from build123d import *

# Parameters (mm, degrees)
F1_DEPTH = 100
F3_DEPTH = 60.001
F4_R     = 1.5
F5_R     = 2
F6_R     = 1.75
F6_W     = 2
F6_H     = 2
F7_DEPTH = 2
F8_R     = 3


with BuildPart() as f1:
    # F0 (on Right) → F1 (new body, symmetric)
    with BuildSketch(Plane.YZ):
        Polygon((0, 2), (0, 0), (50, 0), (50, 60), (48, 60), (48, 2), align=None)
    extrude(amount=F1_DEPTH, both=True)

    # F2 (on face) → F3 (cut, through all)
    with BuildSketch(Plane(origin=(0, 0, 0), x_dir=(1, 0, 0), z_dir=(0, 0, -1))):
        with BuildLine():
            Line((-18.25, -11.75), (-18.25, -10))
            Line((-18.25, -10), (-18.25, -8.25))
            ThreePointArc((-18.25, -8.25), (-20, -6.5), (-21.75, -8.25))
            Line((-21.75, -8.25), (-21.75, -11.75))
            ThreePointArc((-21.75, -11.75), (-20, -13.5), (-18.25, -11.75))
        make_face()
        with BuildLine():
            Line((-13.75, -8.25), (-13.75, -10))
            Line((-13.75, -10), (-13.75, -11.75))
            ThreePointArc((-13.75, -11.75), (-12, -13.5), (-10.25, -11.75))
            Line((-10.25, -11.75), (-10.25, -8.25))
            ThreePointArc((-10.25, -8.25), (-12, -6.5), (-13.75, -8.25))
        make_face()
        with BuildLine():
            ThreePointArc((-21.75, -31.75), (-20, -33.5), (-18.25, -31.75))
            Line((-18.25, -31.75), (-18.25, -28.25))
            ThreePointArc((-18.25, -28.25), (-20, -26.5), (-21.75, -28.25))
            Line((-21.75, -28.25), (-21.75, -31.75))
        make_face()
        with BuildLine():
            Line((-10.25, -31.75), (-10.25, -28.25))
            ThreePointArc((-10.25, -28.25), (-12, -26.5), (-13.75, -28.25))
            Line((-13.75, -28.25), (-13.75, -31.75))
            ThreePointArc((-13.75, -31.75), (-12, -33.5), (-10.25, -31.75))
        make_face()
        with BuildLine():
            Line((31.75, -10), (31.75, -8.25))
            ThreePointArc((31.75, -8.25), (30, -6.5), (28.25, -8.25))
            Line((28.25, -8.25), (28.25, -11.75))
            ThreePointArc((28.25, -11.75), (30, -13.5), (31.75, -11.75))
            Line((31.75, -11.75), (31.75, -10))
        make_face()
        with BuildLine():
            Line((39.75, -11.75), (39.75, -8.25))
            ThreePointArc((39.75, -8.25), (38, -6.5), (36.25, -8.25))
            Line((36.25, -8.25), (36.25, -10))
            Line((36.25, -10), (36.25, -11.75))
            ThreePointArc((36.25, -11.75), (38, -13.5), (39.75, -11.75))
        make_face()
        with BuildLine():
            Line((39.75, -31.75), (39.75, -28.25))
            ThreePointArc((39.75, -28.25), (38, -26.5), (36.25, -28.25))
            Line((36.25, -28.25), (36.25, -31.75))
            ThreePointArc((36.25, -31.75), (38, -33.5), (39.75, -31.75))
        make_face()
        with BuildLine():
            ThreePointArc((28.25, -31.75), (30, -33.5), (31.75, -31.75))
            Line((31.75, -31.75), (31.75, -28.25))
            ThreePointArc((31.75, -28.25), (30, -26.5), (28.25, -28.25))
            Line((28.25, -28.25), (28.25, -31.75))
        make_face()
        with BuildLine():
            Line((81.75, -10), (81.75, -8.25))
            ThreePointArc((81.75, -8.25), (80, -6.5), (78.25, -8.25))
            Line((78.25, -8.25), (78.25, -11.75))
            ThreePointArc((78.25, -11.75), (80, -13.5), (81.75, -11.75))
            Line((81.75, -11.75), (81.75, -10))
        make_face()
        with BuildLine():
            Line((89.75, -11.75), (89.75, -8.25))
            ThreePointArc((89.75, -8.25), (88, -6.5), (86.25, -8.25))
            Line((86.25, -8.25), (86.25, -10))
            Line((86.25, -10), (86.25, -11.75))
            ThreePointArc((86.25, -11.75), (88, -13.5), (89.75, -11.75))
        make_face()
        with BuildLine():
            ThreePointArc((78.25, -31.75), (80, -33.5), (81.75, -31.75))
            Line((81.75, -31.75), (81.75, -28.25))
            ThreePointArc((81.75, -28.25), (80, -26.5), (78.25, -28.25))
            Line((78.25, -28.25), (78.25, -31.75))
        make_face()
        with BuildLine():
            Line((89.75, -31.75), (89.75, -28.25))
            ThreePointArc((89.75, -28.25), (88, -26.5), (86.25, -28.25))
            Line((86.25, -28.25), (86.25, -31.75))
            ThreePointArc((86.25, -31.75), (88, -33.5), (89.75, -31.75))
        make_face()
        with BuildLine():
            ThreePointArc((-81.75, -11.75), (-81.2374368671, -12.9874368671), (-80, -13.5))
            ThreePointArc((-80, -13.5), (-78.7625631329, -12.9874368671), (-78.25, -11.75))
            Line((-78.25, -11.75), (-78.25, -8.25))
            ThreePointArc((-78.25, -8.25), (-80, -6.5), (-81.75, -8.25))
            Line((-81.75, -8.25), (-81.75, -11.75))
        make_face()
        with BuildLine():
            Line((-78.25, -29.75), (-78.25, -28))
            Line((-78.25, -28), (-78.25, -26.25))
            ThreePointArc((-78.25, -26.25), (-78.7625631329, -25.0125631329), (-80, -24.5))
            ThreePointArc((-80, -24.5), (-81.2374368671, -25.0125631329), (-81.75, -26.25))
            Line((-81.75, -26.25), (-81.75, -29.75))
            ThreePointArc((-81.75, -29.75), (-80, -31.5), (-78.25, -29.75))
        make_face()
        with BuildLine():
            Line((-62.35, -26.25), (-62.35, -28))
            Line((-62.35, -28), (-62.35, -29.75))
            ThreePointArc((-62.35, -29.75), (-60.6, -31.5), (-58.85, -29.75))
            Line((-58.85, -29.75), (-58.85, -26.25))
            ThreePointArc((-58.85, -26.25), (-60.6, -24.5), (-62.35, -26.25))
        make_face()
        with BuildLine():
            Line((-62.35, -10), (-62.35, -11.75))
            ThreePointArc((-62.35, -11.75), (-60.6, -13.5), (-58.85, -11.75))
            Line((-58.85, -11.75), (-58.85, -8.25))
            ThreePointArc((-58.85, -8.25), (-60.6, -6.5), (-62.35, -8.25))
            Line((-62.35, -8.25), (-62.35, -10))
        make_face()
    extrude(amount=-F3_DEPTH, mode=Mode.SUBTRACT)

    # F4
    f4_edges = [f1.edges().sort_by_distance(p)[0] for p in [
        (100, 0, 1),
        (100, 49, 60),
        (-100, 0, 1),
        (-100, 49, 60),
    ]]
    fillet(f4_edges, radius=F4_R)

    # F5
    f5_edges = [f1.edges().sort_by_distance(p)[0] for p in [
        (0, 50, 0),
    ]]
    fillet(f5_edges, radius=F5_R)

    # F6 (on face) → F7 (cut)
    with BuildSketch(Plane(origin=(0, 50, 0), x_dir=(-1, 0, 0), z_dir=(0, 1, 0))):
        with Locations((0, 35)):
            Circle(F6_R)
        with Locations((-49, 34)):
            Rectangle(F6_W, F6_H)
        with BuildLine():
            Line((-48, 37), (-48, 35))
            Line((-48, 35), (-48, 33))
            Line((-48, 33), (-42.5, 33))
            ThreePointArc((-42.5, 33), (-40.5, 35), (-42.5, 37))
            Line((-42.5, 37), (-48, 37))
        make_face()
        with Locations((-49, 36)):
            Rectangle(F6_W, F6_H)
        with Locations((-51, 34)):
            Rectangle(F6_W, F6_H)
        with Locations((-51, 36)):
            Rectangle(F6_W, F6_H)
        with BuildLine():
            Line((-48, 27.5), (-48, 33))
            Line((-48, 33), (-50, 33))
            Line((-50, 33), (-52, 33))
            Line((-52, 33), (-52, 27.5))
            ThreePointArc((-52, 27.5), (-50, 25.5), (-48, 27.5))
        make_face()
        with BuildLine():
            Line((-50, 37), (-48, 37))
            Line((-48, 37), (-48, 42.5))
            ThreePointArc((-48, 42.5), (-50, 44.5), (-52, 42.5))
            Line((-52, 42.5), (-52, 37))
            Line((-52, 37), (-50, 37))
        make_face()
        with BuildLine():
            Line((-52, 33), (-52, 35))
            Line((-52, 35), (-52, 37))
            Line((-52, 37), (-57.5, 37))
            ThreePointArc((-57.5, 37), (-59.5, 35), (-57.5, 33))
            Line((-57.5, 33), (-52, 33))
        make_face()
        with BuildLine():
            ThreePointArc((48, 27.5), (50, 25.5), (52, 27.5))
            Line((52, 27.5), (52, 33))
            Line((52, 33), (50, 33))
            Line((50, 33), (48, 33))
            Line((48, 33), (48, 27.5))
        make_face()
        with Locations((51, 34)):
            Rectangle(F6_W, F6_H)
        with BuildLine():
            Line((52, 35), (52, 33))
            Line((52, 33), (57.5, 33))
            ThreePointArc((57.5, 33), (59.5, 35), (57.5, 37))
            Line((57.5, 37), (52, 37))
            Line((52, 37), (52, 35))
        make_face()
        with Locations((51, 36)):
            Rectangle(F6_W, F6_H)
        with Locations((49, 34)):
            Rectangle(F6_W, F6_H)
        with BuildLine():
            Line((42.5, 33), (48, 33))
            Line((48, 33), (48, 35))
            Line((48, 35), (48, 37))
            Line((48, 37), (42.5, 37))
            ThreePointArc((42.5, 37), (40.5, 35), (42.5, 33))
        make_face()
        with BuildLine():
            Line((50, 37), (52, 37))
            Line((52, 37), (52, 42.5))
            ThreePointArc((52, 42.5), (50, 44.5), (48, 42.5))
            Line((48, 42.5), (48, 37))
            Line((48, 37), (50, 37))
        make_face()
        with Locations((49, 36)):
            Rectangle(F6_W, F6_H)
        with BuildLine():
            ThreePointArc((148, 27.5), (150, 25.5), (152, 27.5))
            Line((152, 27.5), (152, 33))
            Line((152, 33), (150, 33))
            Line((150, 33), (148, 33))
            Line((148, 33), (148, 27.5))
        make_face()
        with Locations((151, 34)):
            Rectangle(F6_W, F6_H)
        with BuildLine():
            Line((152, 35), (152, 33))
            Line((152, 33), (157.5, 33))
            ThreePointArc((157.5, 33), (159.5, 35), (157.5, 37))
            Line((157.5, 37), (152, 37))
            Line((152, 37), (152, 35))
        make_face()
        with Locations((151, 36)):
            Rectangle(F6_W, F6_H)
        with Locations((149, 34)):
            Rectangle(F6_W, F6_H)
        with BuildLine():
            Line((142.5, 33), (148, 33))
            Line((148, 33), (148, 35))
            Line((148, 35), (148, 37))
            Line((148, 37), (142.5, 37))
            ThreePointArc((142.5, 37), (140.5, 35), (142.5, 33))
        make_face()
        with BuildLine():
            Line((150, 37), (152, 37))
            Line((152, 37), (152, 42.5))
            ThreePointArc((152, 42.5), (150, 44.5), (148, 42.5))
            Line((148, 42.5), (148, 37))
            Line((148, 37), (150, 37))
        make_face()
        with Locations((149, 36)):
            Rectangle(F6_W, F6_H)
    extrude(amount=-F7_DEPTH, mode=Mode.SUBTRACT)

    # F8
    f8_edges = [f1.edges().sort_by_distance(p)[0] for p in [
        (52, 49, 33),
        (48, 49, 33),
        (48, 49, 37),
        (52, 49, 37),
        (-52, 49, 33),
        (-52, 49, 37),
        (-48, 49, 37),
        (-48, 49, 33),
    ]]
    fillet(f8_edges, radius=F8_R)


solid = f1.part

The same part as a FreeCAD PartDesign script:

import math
import FreeCAD as App
import Part
import Sketcher


def edges_at(feature, points):
    """Names of the edges that pass closest to the given points."""
    edges = feature.Shape.Edges
    near = lambda p: min(range(len(edges)), key=lambda i: edges[i].distToShape(Part.Vertex(*p))[0])
    return sorted({f"Edge{near(p) + 1}" for p in points})

doc = App.newDocument("Part")
body = doc.addObject("PartDesign::Body", "Body")

sketch1 = body.newObject("Sketcher::SketchObject", "Sketch")
sketch1.AttachmentSupport = (doc.getObject("YZ_Plane"), [""])
sketch1.MapMode = "FlatFace"
sketch1.addGeometry([
    Part.LineSegment(App.Vector(0, 2, 0), App.Vector(0, 0, 0)),
    Part.LineSegment(App.Vector(0, 0, 0), App.Vector(50, 0, 0)),
    Part.LineSegment(App.Vector(50, 0, 0), App.Vector(50, 60, 0)),
    Part.LineSegment(App.Vector(50, 60, 0), App.Vector(48, 60, 0)),
    Part.LineSegment(App.Vector(48, 60, 0), App.Vector(48, 2, 0)),
    Part.LineSegment(App.Vector(48, 2, 0), App.Vector(0, 2, 0)),
], False)
sketch1.addConstraint([
    Sketcher.Constraint("Coincident", 0, 2, 1, 1),
    Sketcher.Constraint("Coincident", 1, 2, 2, 1),
    Sketcher.Constraint("Coincident", 2, 2, 3, 1),
    Sketcher.Constraint("Coincident", 3, 2, 4, 1),
    Sketcher.Constraint("Coincident", 4, 2, 5, 1),
    Sketcher.Constraint("Coincident", 5, 2, 0, 1),
    Sketcher.Constraint("Vertical", 0),
    Sketcher.Constraint("Horizontal", 1),
    Sketcher.Constraint("Vertical", 2),
    Sketcher.Constraint("Horizontal", 3),
    Sketcher.Constraint("Vertical", 4),
    Sketcher.Constraint("Horizontal", 5),
    Sketcher.Constraint("Coincident", 0, 2, -1, 1),
    Sketcher.Constraint("Equal", 3, 0),
    Sketcher.Constraint("DistanceX", 1, 1, 1, 2, 50.0),
    Sketcher.Constraint("DistanceX", 3, 2, 3, 1, 2.0),
    Sketcher.Constraint("DistanceY", 2, 1, 2, 2, 60.0),
])
pad1 = body.newObject("PartDesign::Pad", "Pad")
pad1.Profile = sketch1
pad1.Length = 200
pad1.Midplane = True

sketch2 = body.newObject("Sketcher::SketchObject", "Sketch001")
sketch2.AttachmentSupport = (doc.getObject("XY_Plane"), [""])
sketch2.MapMode = "FlatFace"
sketch2.addGeometry([
    Part.LineSegment(App.Vector(-18.25, 11.75, 0), App.Vector(-18.25, 8.25, 0)),
    Part.ArcOfCircle(Part.Circle(App.Vector(-20, 8.25, 0), App.Vector(0, 0, 1), 1.75), math.radians(180), math.radians(360)),
    Part.LineSegment(App.Vector(-21.75, 8.25, 0), App.Vector(-21.75, 11.75, 0)),
    Part.ArcOfCircle(Part.Circle(App.Vector(-20, 11.75, 0), App.Vector(0, 0, 1), 1.75), math.radians(0), math.radians(180)),
    Part.LineSegment(App.Vector(-13.75, 8.25, 0), App.Vector(-13.75, 11.75, 0)),
    Part.ArcOfCircle(Part.Circle(App.Vector(-12, 11.75, 0), App.Vector(0, 0, 1), 1.75), math.radians(0), math.radians(180)),
    Part.LineSegment(App.Vector(-10.25, 11.75, 0), App.Vector(-10.25, 8.25, 0)),
    Part.ArcOfCircle(Part.Circle(App.Vector(-12, 8.25, 0), App.Vector(0, 0, 1), 1.75), math.radians(180), math.radians(360)),
    Part.ArcOfCircle(Part.Circle(App.Vector(-20, 31.75, 0), App.Vector(0, 0, 1), 1.75), math.radians(0), math.radians(180)),
    Part.LineSegment(App.Vector(-18.25, 31.75, 0), App.Vector(-18.25, 28.25, 0)),
    Part.ArcOfCircle(Part.Circle(App.Vector(-20, 28.25, 0), App.Vector(0, 0, 1), 1.75), math.radians(180), math.radians(360)),
    Part.LineSegment(App.Vector(-21.75, 28.25, 0), App.Vector(-21.75, 31.75, 0)),
    Part.LineSegment(App.Vector(-10.25, 31.75, 0), App.Vector(-10.25, 28.25, 0)),
    Part.ArcOfCircle(Part.Circle(App.Vector(-12, 28.25, 0), App.Vector(0, 0, 1), 1.75), math.radians(180), math.radians(360)),
    Part.LineSegment(App.Vector(-13.75, 28.25, 0), App.Vector(-13.75, 31.75, 0)),
    Part.ArcOfCircle(Part.Circle(App.Vector(-12, 31.75, 0), App.Vector(0, 0, 1), 1.75), math.radians(0), math.radians(180)),
    Part.ArcOfCircle(Part.Circle(App.Vector(30, 8.25, 0), App.Vector(0, 0, 1), 1.75), math.radians(180), math.radians(360)),
    Part.LineSegment(App.Vector(28.25, 8.25, 0), App.Vector(28.25, 11.75, 0)),
    Part.ArcOfCircle(Part.Circle(App.Vector(30, 11.75, 0), App.Vector(0, 0, 1), 1.75), math.radians(0), math.radians(180)),
    Part.LineSegment(App.Vector(31.75, 11.75, 0), App.Vector(31.75, 8.25, 0)),
    Part.LineSegment(App.Vector(39.75, 11.75, 0), App.Vector(39.75, 8.25, 0)),
    Part.ArcOfCircle(Part.Circle(App.Vector(38, 8.25, 0), App.Vector(0, 0, 1), 1.75), math.radians(180), math.radians(360)),
    Part.LineSegment(App.Vector(36.25, 8.25, 0), App.Vector(36.25, 11.75, 0)),
    Part.ArcOfCircle(Part.Circle(App.Vector(38, 11.75, 0), App.Vector(0, 0, 1), 1.75), math.radians(0), math.radians(180)),
    Part.LineSegment(App.Vector(39.75, 31.75, 0), App.Vector(39.75, 28.25, 0)),
    Part.ArcOfCircle(Part.Circle(App.Vector(38, 28.25, 0), App.Vector(0, 0, 1), 1.75), math.radians(180), math.radians(360)),
    Part.LineSegment(App.Vector(36.25, 28.25, 0), App.Vector(36.25, 31.75, 0)),
    Part.ArcOfCircle(Part.Circle(App.Vector(38, 31.75, 0), App.Vector(0, 0, 1), 1.75), math.radians(0), math.radians(180)),
    Part.ArcOfCircle(Part.Circle(App.Vector(30, 31.75, 0), App.Vector(0, 0, 1), 1.75), math.radians(0), math.radians(180)),
    Part.LineSegment(App.Vector(31.75, 31.75, 0), App.Vector(31.75, 28.25, 0)),
    Part.ArcOfCircle(Part.Circle(App.Vector(30, 28.25, 0), App.Vector(0, 0, 1), 1.75), math.radians(180), math.radians(360)),
    Part.LineSegment(App.Vector(28.25, 28.25, 0), App.Vector(28.25, 31.75, 0)),
    Part.ArcOfCircle(Part.Circle(App.Vector(80, 8.25, 0), App.Vector(0, 0, 1), 1.75), math.radians(180), math.radians(360)),
    Part.LineSegment(App.Vector(78.25, 8.25, 0), App.Vector(78.25, 11.75, 0)),
    Part.ArcOfCircle(Part.Circle(App.Vector(80, 11.75, 0), App.Vector(0, 0, 1), 1.75), math.radians(0), math.radians(180)),
    Part.LineSegment(App.Vector(81.75, 11.75, 0), App.Vector(81.75, 8.25, 0)),
    Part.LineSegment(App.Vector(89.75, 11.75, 0), App.Vector(89.75, 8.25, 0)),
    Part.ArcOfCircle(Part.Circle(App.Vector(88, 8.25, 0), App.Vector(0, 0, 1), 1.75), math.radians(180), math.radians(360)),
    Part.LineSegment(App.Vector(86.25, 8.25, 0), App.Vector(86.25, 11.75, 0)),
    Part.ArcOfCircle(Part.Circle(App.Vector(88, 11.75, 0), App.Vector(0, 0, 1), 1.75), math.radians(0), math.radians(180)),
    Part.ArcOfCircle(Part.Circle(App.Vector(80, 31.75, 0), App.Vector(0, 0, 1), 1.75), math.radians(0), math.radians(180)),
    Part.LineSegment(App.Vector(81.75, 31.75, 0), App.Vector(81.75, 28.25, 0)),
    Part.ArcOfCircle(Part.Circle(App.Vector(80, 28.25, 0), App.Vector(0, 0, 1), 1.75), math.radians(180), math.radians(360)),
    Part.LineSegment(App.Vector(78.25, 28.25, 0), App.Vector(78.25, 31.75, 0)),
    Part.LineSegment(App.Vector(89.75, 31.75, 0), App.Vector(89.75, 28.25, 0)),
    Part.ArcOfCircle(Part.Circle(App.Vector(88, 28.25, 0), App.Vector(0, 0, 1), 1.75), math.radians(180), math.radians(360)),
    Part.LineSegment(App.Vector(86.25, 28.25, 0), App.Vector(86.25, 31.75, 0)),
    Part.ArcOfCircle(Part.Circle(App.Vector(88, 31.75, 0), App.Vector(0, 0, 1), 1.75), math.radians(0), math.radians(180)),
    Part.ArcOfCircle(Part.Circle(App.Vector(-80, 11.75, 0), App.Vector(0, 0, 1), 1.75), math.radians(90), math.radians(180)),
    Part.ArcOfCircle(Part.Circle(App.Vector(-80, 11.75, 0), App.Vector(0, 0, 1), 1.75), math.radians(0), math.radians(90)),
    Part.LineSegment(App.Vector(-78.25, 11.75, 0), App.Vector(-78.25, 8.25, 0)),
    Part.ArcOfCircle(Part.Circle(App.Vector(-80, 8.25, 0), App.Vector(0, 0, 1), 1.75), math.radians(180), math.radians(360)),
    Part.LineSegment(App.Vector(-81.75, 8.25, 0), App.Vector(-81.75, 11.75, 0)),
    Part.LineSegment(App.Vector(-78.25, 29.75, 0), App.Vector(-78.25, 26.25, 0)),
    Part.ArcOfCircle(Part.Circle(App.Vector(-80, 26.25, 0), App.Vector(0, 0, 1), 1.75), math.radians(-90), math.radians(0)),
    Part.ArcOfCircle(Part.Circle(App.Vector(-80, 26.25, 0), App.Vector(0, 0, 1), 1.75), math.radians(180), math.radians(270)),
    Part.LineSegment(App.Vector(-81.75, 26.25, 0), App.Vector(-81.75, 29.75, 0)),
    Part.ArcOfCircle(Part.Circle(App.Vector(-80, 29.75, 0), App.Vector(0, 0, 1), 1.75), math.radians(0), math.radians(180)),
    Part.LineSegment(App.Vector(-62.35, 26.25, 0), App.Vector(-62.35, 29.75, 0)),
    Part.ArcOfCircle(Part.Circle(App.Vector(-60.6, 29.75, 0), App.Vector(0, 0, 1), 1.75), math.radians(0), math.radians(180)),
    Part.LineSegment(App.Vector(-58.85, 29.75, 0), App.Vector(-58.85, 26.25, 0)),
    Part.ArcOfCircle(Part.Circle(App.Vector(-60.6, 26.25, 0), App.Vector(0, 0, 1), 1.75), math.radians(180), math.radians(360)),
    Part.ArcOfCircle(Part.Circle(App.Vector(-60.6, 11.75, 0), App.Vector(0, 0, 1), 1.75), math.radians(0), math.radians(180)),
    Part.LineSegment(App.Vector(-58.85, 11.75, 0), App.Vector(-58.85, 8.25, 0)),
    Part.ArcOfCircle(Part.Circle(App.Vector(-60.6, 8.25, 0), App.Vector(0, 0, 1), 1.75), math.radians(180), math.radians(360)),
    Part.LineSegment(App.Vector(-62.35, 8.25, 0), App.Vector(-62.35, 11.75, 0)),
], False)
sketch2.addConstraint([
    Sketcher.Constraint("Tangent", 0, 2, 1, 2),
    Sketcher.Constraint("Tangent", 1, 1, 2, 1),
    Sketcher.Constraint("Tangent", 2, 2, 3, 2),
    Sketcher.Constraint("Tangent", 3, 1, 0, 1),
    Sketcher.Constraint("Tangent", 4, 2, 5, 2),
    Sketcher.Constraint("Tangent", 5, 1, 6, 1),
    Sketcher.Constraint("Tangent", 6, 2, 7, 2),
    Sketcher.Constraint("Tangent", 7, 1, 4, 1),
    Sketcher.Constraint("Tangent", 8, 1, 9, 1),
    Sketcher.Constraint("Tangent", 9, 2, 10, 2),
    Sketcher.Constraint("Tangent", 10, 1, 11, 1),
    Sketcher.Constraint("Tangent", 11, 2, 8, 2),
    Sketcher.Constraint("Tangent", 12, 2, 13, 2),
    Sketcher.Constraint("Tangent", 13, 1, 14, 1),
    Sketcher.Constraint("Tangent", 14, 2, 15, 2),
    Sketcher.Constraint("Tangent", 15, 1, 12, 1),
    Sketcher.Constraint("Tangent", 16, 1, 17, 1),
    Sketcher.Constraint("Tangent", 17, 2, 18, 2),
    Sketcher.Constraint("Tangent", 18, 1, 19, 1),
    Sketcher.Constraint("Tangent", 19, 2, 16, 2),
    Sketcher.Constraint("Tangent", 20, 2, 21, 2),
    Sketcher.Constraint("Tangent", 21, 1, 22, 1),
    Sketcher.Constraint("Tangent", 22, 2, 23, 2),
    Sketcher.Constraint("Tangent", 23, 1, 20, 1),
    Sketcher.Constraint("Tangent", 24, 2, 25, 2),
    Sketcher.Constraint("Tangent", 25, 1, 26, 1),
    Sketcher.Constraint("Tangent", 26, 2, 27, 2),
    Sketcher.Constraint("Tangent", 27, 1, 24, 1),
    Sketcher.Constraint("Tangent", 28, 1, 29, 1),
    Sketcher.Constraint("Tangent", 29, 2, 30, 2),
    Sketcher.Constraint("Tangent", 30, 1, 31, 1),
    Sketcher.Constraint("Tangent", 31, 2, 28, 2),
    Sketcher.Constraint("Tangent", 32, 1, 33, 1),
    Sketcher.Constraint("Tangent", 33, 2, 34, 2),
    Sketcher.Constraint("Tangent", 34, 1, 35, 1),
    Sketcher.Constraint("Tangent", 35, 2, 32, 2),
    Sketcher.Constraint("Tangent", 36, 2, 37, 2),
    Sketcher.Constraint("Tangent", 37, 1, 38, 1),
    Sketcher.Constraint("Tangent", 38, 2, 39, 2),
    Sketcher.Constraint("Tangent", 39, 1, 36, 1),
    Sketcher.Constraint("Tangent", 40, 1, 41, 1),
    Sketcher.Constraint("Tangent", 41, 2, 42, 2),
    Sketcher.Constraint("Tangent", 42, 1, 43, 1),
    Sketcher.Constraint("Tangent", 43, 2, 40, 2),
    Sketcher.Constraint("Tangent", 44, 2, 45, 2),
    Sketcher.Constraint("Tangent", 45, 1, 46, 1),
    Sketcher.Constraint("Tangent", 46, 2, 47, 2),
    Sketcher.Constraint("Tangent", 47, 1, 44, 1),
    Sketcher.Constraint("Tangent", 48, 1, 49, 2),
    Sketcher.Constraint("Tangent", 49, 1, 50, 1),
    Sketcher.Constraint("Tangent", 50, 2, 51, 2),
    Sketcher.Constraint("Tangent", 51, 1, 52, 1),
    Sketcher.Constraint("Tangent", 52, 2, 48, 2),
    Sketcher.Constraint("Tangent", 53, 2, 54, 2),
    Sketcher.Constraint("Tangent", 54, 1, 55, 2),
    Sketcher.Constraint("Tangent", 55, 1, 56, 1),
    Sketcher.Constraint("Tangent", 56, 2, 57, 2),
    Sketcher.Constraint("Tangent", 57, 1, 53, 1),
    Sketcher.Constraint("Tangent", 58, 2, 59, 2),
    Sketcher.Constraint("Tangent", 59, 1, 60, 1),
    Sketcher.Constraint("Tangent", 60, 2, 61, 2),
    Sketcher.Constraint("Tangent", 61, 1, 58, 1),
    Sketcher.Constraint("Tangent", 62, 1, 63, 1),
    Sketcher.Constraint("Tangent", 63, 2, 64, 2),
    Sketcher.Constraint("Tangent", 64, 1, 65, 1),
    Sketcher.Constraint("Tangent", 65, 2, 62, 2),
    Sketcher.Constraint("Vertical", 0),
    Sketcher.Constraint("Vertical", 2),
    Sketcher.Constraint("Vertical", 4),
    Sketcher.Constraint("Vertical", 6),
    Sketcher.Constraint("Vertical", 9),
    Sketcher.Constraint("Vertical", 11),
    Sketcher.Constraint("Vertical", 12),
    Sketcher.Constraint("Vertical", 14),
    Sketcher.Constraint("Vertical", 17),
    Sketcher.Constraint("Vertical", 19),
    Sketcher.Constraint("Vertical", 20),
    Sketcher.Constraint("Vertical", 22),
    Sketcher.Constraint("Vertical", 24),
    Sketcher.Constraint("Vertical", 26),
    Sketcher.Constraint("Vertical", 29),
    Sketcher.Constraint("Vertical", 31),
    Sketcher.Constraint("Vertical", 33),
    Sketcher.Constraint("Vertical", 35),
    Sketcher.Constraint("Vertical", 36),
    Sketcher.Constraint("Vertical", 38),
    Sketcher.Constraint("Vertical", 41),
    Sketcher.Constraint("Vertical", 43),
    Sketcher.Constraint("Vertical", 44),
    Sketcher.Constraint("Vertical", 46),
    Sketcher.Constraint("Vertical", 50),
    Sketcher.Constraint("Vertical", 52),
    Sketcher.Constraint("Vertical", 53),
    Sketcher.Constraint("Vertical", 56),
    Sketcher.Constraint("Vertical", 58),
    Sketcher.Constraint("Vertical", 60),
    Sketcher.Constraint("Vertical", 63),
    Sketcher.Constraint("Vertical", 65),
    Sketcher.Constraint("Equal", 3, 5),
    Sketcher.Constraint("Equal", 7, 8),
    Sketcher.Constraint("Equal", 10, 13),
    Sketcher.Constraint("Equal", 15, 16),
    Sketcher.Constraint("Equal", 18, 21),
    Sketcher.Constraint("Equal", 23, 25),
    Sketcher.Constraint("Equal", 27, 28),
    Sketcher.Constraint("Equal", 30, 32),
    Sketcher.Constraint("Equal", 34, 37),
    Sketcher.Constraint("Equal", 39, 40),
    Sketcher.Constraint("Equal", 42, 45),
    Sketcher.Constraint("Equal", 47, 48),
    Sketcher.Constraint("Equal", 48, 49),
    Sketcher.Constraint("Equal", 51, 54),
    Sketcher.Constraint("Equal", 54, 55),
    Sketcher.Constraint("Equal", 57, 59),
    Sketcher.Constraint("Equal", 61, 62),
    Sketcher.Constraint("Symmetric", 34, 3, 48, 3, -2),
    Sketcher.Constraint("Horizontal", 3, 3, 5, 3),
    Sketcher.Constraint("Horizontal", 1, 3, 7, 3),
    Sketcher.Constraint("Horizontal", 10, 3, 13, 3),
    Sketcher.Constraint("Horizontal", 8, 3, 15, 3),
    Sketcher.Constraint("Horizontal", 7, 3, 16, 3),
    Sketcher.Constraint("Horizontal", 5, 3, 18, 3),
    Sketcher.Constraint("Horizontal", 16, 3, 21, 3),
    Sketcher.Constraint("Horizontal", 18, 3, 23, 3),
    Sketcher.Constraint("Horizontal", 13, 3, 25, 3),
    Sketcher.Constraint("Horizontal", 15, 3, 27, 3),
    Sketcher.Constraint("Horizontal", 27, 3, 28, 3),
    Sketcher.Constraint("Horizontal", 25, 3, 30, 3),
    Sketcher.Constraint("Horizontal", 21, 3, 32, 3),
    Sketcher.Constraint("Horizontal", 23, 3, 34, 3),
    Sketcher.Constraint("Horizontal", 32, 3, 37, 3),
    Sketcher.Constraint("Horizontal", 34, 3, 39, 3),
    Sketcher.Constraint("Horizontal", 28, 3, 40, 3),
    Sketcher.Constraint("Horizontal", 30, 3, 42, 3),
    Sketcher.Constraint("Horizontal", 42, 3, 45, 3),
    Sketcher.Constraint("Horizontal", 40, 3, 47, 3),
    Sketcher.Constraint("Horizontal", 37, 3, 51, 3),
    Sketcher.Constraint("Horizontal", 57, 3, 59, 3),
    Sketcher.Constraint("Horizontal", 55, 3, 61, 3),
    Sketcher.Constraint("Horizontal", 49, 3, 62, 3),
    Sketcher.Constraint("Horizontal", 51, 3, 64, 3),
    Sketcher.Constraint("Vertical", 3, 3, 8, 3),
    Sketcher.Constraint("Vertical", 7, 3, 13, 3),
    Sketcher.Constraint("Vertical", 23, 3, 25, 3),
    Sketcher.Constraint("Vertical", 18, 3, 28, 3),
    Sketcher.Constraint("Vertical", 34, 3, 40, 3),
    Sketcher.Constraint("Vertical", 39, 3, 45, 3),
    Sketcher.Constraint("Vertical", 51, 3, 54, 3),
    Sketcher.Constraint("Vertical", 61, 3, 62, 3),
    Sketcher.Constraint("Vertical", 57, 3, 48, 1),
    Sketcher.Constraint("Vertical", 48, 1, 54, 1),
    Sketcher.Constraint("Equal", 6, 9),
    Sketcher.Constraint("Equal", 52, 53),
    Sketcher.Constraint("Radius", 1, 1.75),
    Sketcher.Constraint("DistanceY", 0, 2, 0, 1, 3.5),
    Sketcher.Constraint("DistanceX", 1, 3, -1, 1, 20.0),
    Sketcher.Constraint("DistanceX", 5, 3, -1, 1, 12.0),
    Sketcher.Constraint("DistanceX", -1, 1, 16, 3, 30.0),
    Sketcher.Constraint("DistanceX", -1, 1, 21, 3, 38.0),
    Sketcher.Constraint("DistanceX", -1, 1, 32, 3, 80.0),
    Sketcher.Constraint("DistanceX", -1, 1, 37, 3, 88.0),
    Sketcher.Constraint("DistanceX", 59, 3, -1, 1, 60.6),
    Sketcher.Constraint("DistanceY", -1, 1, 48, 1, 13.5),
    Sketcher.Constraint("DistanceY", -1, 1, 54, 1, 24.5),
    Sketcher.Constraint("DistanceY", -1, 1, 8, 3, 31.75),
])
pocket1 = body.newObject("PartDesign::Pocket", "Pocket")
pocket1.Profile = sketch2
pocket1.Type = "ThroughAll"
pocket1.Reversed = True
doc.recompute()

fillet = body.newObject("PartDesign::Fillet", "Fillet")
fillet.Base = (pocket1, edges_at(pocket1, [
    (100, 0, 1),
    (100, 49, 60),
    (-100, 0, 1),
    (-100, 49, 60),
]))
fillet.Radius = 1.5
doc.recompute()

fillet2 = body.newObject("PartDesign::Fillet", "Fillet001")
fillet2.Base = (fillet, edges_at(fillet, [(0, 50, 0)]))
fillet2.Radius = 2

sketch3 = body.newObject("Sketcher::SketchObject", "Sketch002")
sketch3.AttachmentSupport = (doc.getObject("XZ_Plane"), [""])
sketch3.MapMode = "FlatFace"
sketch3.AttachmentOffset = App.Placement(App.Vector(0, 0, -50), App.Rotation())
sketch3.addGeometry([
    Part.Circle(App.Vector(0, 35, 0), App.Vector(0, 0, 1), 1.75),
    Part.ArcOfCircle(Part.Circle(App.Vector(42.5, 35, 0), App.Vector(0, 0, 1), 2), math.radians(90), math.radians(270)),
    Part.LineSegment(App.Vector(42.5, 37, 0), App.Vector(48, 37, 0)),
    Part.LineSegment(App.Vector(48, 37, 0), App.Vector(48, 42.5, 0)),
    Part.ArcOfCircle(Part.Circle(App.Vector(50, 42.5, 0), App.Vector(0, 0, 1), 2), math.radians(0), math.radians(180)),
    Part.LineSegment(App.Vector(52, 42.5, 0), App.Vector(52, 37, 0)),
    Part.LineSegment(App.Vector(52, 37, 0), App.Vector(57.5, 37, 0)),
    Part.ArcOfCircle(Part.Circle(App.Vector(57.5, 35, 0), App.Vector(0, 0, 1), 2), math.radians(-90), math.radians(90)),
    Part.LineSegment(App.Vector(57.5, 33, 0), App.Vector(52, 33, 0)),
    Part.LineSegment(App.Vector(52, 33, 0), App.Vector(52, 27.5, 0)),
    Part.ArcOfCircle(Part.Circle(App.Vector(50, 27.5, 0), App.Vector(0, 0, 1), 2), math.radians(180), math.radians(360)),
    Part.LineSegment(App.Vector(48, 27.5, 0), App.Vector(48, 33, 0)),
    Part.LineSegment(App.Vector(48, 33, 0), App.Vector(42.5, 33, 0)),
    Part.LineSegment(App.Vector(-48, 42.5, 0), App.Vector(-48, 37, 0)),
    Part.LineSegment(App.Vector(-48, 37, 0), App.Vector(-42.5, 37, 0)),
    Part.ArcOfCircle(Part.Circle(App.Vector(-42.5, 35, 0), App.Vector(0, 0, 1), 2), math.radians(-90), math.radians(90)),
    Part.LineSegment(App.Vector(-42.5, 33, 0), App.Vector(-48, 33, 0)),
    Part.LineSegment(App.Vector(-48, 33, 0), App.Vector(-48, 27.5, 0)),
    Part.ArcOfCircle(Part.Circle(App.Vector(-50, 27.5, 0), App.Vector(0, 0, 1), 2), math.radians(180), math.radians(360)),
    Part.LineSegment(App.Vector(-52, 27.5, 0), App.Vector(-52, 33, 0)),
    Part.LineSegment(App.Vector(-52, 33, 0), App.Vector(-57.5, 33, 0)),
    Part.ArcOfCircle(Part.Circle(App.Vector(-57.5, 35, 0), App.Vector(0, 0, 1), 2), math.radians(90), math.radians(270)),
    Part.LineSegment(App.Vector(-57.5, 37, 0), App.Vector(-52, 37, 0)),
    Part.LineSegment(App.Vector(-52, 37, 0), App.Vector(-52, 42.5, 0)),
    Part.ArcOfCircle(Part.Circle(App.Vector(-50, 42.5, 0), App.Vector(0, 0, 1), 2), math.radians(0), math.radians(180)),
    Part.LineSegment(App.Vector(-148, 42.5, 0), App.Vector(-148, 37, 0)),
    Part.LineSegment(App.Vector(-148, 37, 0), App.Vector(-142.5, 37, 0)),
    Part.ArcOfCircle(Part.Circle(App.Vector(-142.5, 35, 0), App.Vector(0, 0, 1), 2), math.radians(-90), math.radians(90)),
    Part.LineSegment(App.Vector(-142.5, 33, 0), App.Vector(-148, 33, 0)),
    Part.LineSegment(App.Vector(-148, 33, 0), App.Vector(-148, 27.5, 0)),
    Part.ArcOfCircle(Part.Circle(App.Vector(-150, 27.5, 0), App.Vector(0, 0, 1), 2), math.radians(180), math.radians(360)),
    Part.LineSegment(App.Vector(-152, 27.5, 0), App.Vector(-152, 33, 0)),
    Part.LineSegment(App.Vector(-152, 33, 0), App.Vector(-157.5, 33, 0)),
    Part.ArcOfCircle(Part.Circle(App.Vector(-157.5, 35, 0), App.Vector(0, 0, 1), 2), math.radians(90), math.radians(270)),
    Part.LineSegment(App.Vector(-157.5, 37, 0), App.Vector(-152, 37, 0)),
    Part.LineSegment(App.Vector(-152, 37, 0), App.Vector(-152, 42.5, 0)),
    Part.ArcOfCircle(Part.Circle(App.Vector(-150, 42.5, 0), App.Vector(0, 0, 1), 2), math.radians(0), math.radians(180)),
], False)
sketch3.addConstraint([
    Sketcher.Constraint("Tangent", 1, 1, 2, 1),
    Sketcher.Constraint("Coincident", 2, 2, 3, 1),
    Sketcher.Constraint("Tangent", 3, 2, 4, 2),
    Sketcher.Constraint("Tangent", 4, 1, 5, 1),
    Sketcher.Constraint("Coincident", 5, 2, 6, 1),
    Sketcher.Constraint("Tangent", 6, 2, 7, 2),
    Sketcher.Constraint("Tangent", 7, 1, 8, 1),
    Sketcher.Constraint("Coincident", 8, 2, 9, 1),
    Sketcher.Constraint("Tangent", 9, 2, 10, 2),
    Sketcher.Constraint("Tangent", 10, 1, 11, 1),
    Sketcher.Constraint("Coincident", 11, 2, 12, 1),
    Sketcher.Constraint("Tangent", 12, 2, 1, 2),
    Sketcher.Constraint("Coincident", 13, 2, 14, 1),
    Sketcher.Constraint("Tangent", 14, 2, 15, 2),
    Sketcher.Constraint("Tangent", 15, 1, 16, 1),
    Sketcher.Constraint("Coincident", 16, 2, 17, 1),
    Sketcher.Constraint("Tangent", 17, 2, 18, 2),
    Sketcher.Constraint("Tangent", 18, 1, 19, 1),
    Sketcher.Constraint("Coincident", 19, 2, 20, 1),
    Sketcher.Constraint("Tangent", 20, 2, 21, 2),
    Sketcher.Constraint("Tangent", 21, 1, 22, 1),
    Sketcher.Constraint("Coincident", 22, 2, 23, 1),
    Sketcher.Constraint("Tangent", 23, 2, 24, 2),
    Sketcher.Constraint("Tangent", 24, 1, 13, 1),
    Sketcher.Constraint("Coincident", 25, 2, 26, 1),
    Sketcher.Constraint("Tangent", 26, 2, 27, 2),
    Sketcher.Constraint("Tangent", 27, 1, 28, 1),
    Sketcher.Constraint("Coincident", 28, 2, 29, 1),
    Sketcher.Constraint("Tangent", 29, 2, 30, 2),
    Sketcher.Constraint("Tangent", 30, 1, 31, 1),
    Sketcher.Constraint("Coincident", 31, 2, 32, 1),
    Sketcher.Constraint("Tangent", 32, 2, 33, 2),
    Sketcher.Constraint("Tangent", 33, 1, 34, 1),
    Sketcher.Constraint("Coincident", 34, 2, 35, 1),
    Sketcher.Constraint("Tangent", 35, 2, 36, 2),
    Sketcher.Constraint("Tangent", 36, 1, 25, 1),
    Sketcher.Constraint("Horizontal", 2),
    Sketcher.Constraint("Vertical", 3),
    Sketcher.Constraint("Vertical", 5),
    Sketcher.Constraint("Horizontal", 6),
    Sketcher.Constraint("Horizontal", 8),
    Sketcher.Constraint("Vertical", 9),
    Sketcher.Constraint("Vertical", 11),
    Sketcher.Constraint("Horizontal", 12),
    Sketcher.Constraint("Vertical", 13),
    Sketcher.Constraint("Horizontal", 14),
    Sketcher.Constraint("Horizontal", 16),
    Sketcher.Constraint("Vertical", 17),
    Sketcher.Constraint("Vertical", 19),
    Sketcher.Constraint("Horizontal", 20),
    Sketcher.Constraint("Horizontal", 22),
    Sketcher.Constraint("Vertical", 23),
    Sketcher.Constraint("Vertical", 25),
    Sketcher.Constraint("Horizontal", 26),
    Sketcher.Constraint("Horizontal", 28),
    Sketcher.Constraint("Vertical", 29),
    Sketcher.Constraint("Vertical", 31),
    Sketcher.Constraint("Horizontal", 32),
    Sketcher.Constraint("Horizontal", 34),
    Sketcher.Constraint("Vertical", 35),
    Sketcher.Constraint("Equal", 1, 4),
    Sketcher.Constraint("Equal", 4, 7),
    Sketcher.Constraint("Equal", 7, 10),
    Sketcher.Constraint("Equal", 10, 15),
    Sketcher.Constraint("Equal", 15, 18),
    Sketcher.Constraint("Equal", 18, 21),
    Sketcher.Constraint("Equal", 21, 24),
    Sketcher.Constraint("Equal", 24, 27),
    Sketcher.Constraint("Equal", 27, 30),
    Sketcher.Constraint("Equal", 30, 33),
    Sketcher.Constraint("Equal", 33, 36),
    Sketcher.Constraint("Symmetric", 1, 3, 15, 3, -2),
    Sketcher.Constraint("Symmetric", 10, 3, 18, 3, -2),
    Sketcher.Constraint("Symmetric", 7, 3, 21, 3, -2),
    Sketcher.Constraint("Symmetric", 4, 3, 24, 3, -2),
    Sketcher.Constraint("PointOnObject", 0, 3, -2),
    Sketcher.Constraint("Horizontal", 0, 3, 1, 3),
    Sketcher.Constraint("Horizontal", 1, 3, 7, 3),
    Sketcher.Constraint("Horizontal", 21, 3, 27, 3),
    Sketcher.Constraint("Horizontal", 18, 3, 30, 3),
    Sketcher.Constraint("Horizontal", 27, 3, 33, 3),
    Sketcher.Constraint("Horizontal", 24, 3, 36, 3),
    Sketcher.Constraint("Vertical", 4, 3, 10, 3),
    Sketcher.Constraint("Vertical", 30, 3, 36, 3),
    Sketcher.Constraint("Equal", 2, 6),
    Sketcher.Constraint("Equal", 22, 26),
    Sketcher.Constraint("Equal", 28, 32),
    Sketcher.Constraint("Equal", 34, 3),
    Sketcher.Constraint("Equal", 5, 9),
    Sketcher.Constraint("Radius", 1, 2.0),
    Sketcher.Constraint("Diameter", 0, 3.5),
    Sketcher.Constraint("DistanceX", 2, 1, 2, 2, 5.5),
    Sketcher.Constraint("DistanceY", -1, 1, 0, 3, 35.0),
    Sketcher.Constraint("DistanceX", -1, 1, 4, 3, 50.0),
    Sketcher.Constraint("DistanceX", 30, 3, -1, 1, 150.0),
])
pocket2 = body.newObject("PartDesign::Pocket", "Pocket001")
pocket2.Profile = sketch3
pocket2.Length = 2
pocket2.Reversed = True
doc.recompute()

fillet3 = body.newObject("PartDesign::Fillet", "Fillet002")
fillet3.Base = (pocket2, edges_at(pocket2, [
    (52, 49, 33),
    (48, 49, 33),
    (48, 49, 37),
    (52, 49, 37),
    (-52, 49, 33),
    (-52, 49, 37),
    (-48, 49, 37),
    (-48, 49, 33),
]))
fillet3.Radius = 3

doc.recompute()
